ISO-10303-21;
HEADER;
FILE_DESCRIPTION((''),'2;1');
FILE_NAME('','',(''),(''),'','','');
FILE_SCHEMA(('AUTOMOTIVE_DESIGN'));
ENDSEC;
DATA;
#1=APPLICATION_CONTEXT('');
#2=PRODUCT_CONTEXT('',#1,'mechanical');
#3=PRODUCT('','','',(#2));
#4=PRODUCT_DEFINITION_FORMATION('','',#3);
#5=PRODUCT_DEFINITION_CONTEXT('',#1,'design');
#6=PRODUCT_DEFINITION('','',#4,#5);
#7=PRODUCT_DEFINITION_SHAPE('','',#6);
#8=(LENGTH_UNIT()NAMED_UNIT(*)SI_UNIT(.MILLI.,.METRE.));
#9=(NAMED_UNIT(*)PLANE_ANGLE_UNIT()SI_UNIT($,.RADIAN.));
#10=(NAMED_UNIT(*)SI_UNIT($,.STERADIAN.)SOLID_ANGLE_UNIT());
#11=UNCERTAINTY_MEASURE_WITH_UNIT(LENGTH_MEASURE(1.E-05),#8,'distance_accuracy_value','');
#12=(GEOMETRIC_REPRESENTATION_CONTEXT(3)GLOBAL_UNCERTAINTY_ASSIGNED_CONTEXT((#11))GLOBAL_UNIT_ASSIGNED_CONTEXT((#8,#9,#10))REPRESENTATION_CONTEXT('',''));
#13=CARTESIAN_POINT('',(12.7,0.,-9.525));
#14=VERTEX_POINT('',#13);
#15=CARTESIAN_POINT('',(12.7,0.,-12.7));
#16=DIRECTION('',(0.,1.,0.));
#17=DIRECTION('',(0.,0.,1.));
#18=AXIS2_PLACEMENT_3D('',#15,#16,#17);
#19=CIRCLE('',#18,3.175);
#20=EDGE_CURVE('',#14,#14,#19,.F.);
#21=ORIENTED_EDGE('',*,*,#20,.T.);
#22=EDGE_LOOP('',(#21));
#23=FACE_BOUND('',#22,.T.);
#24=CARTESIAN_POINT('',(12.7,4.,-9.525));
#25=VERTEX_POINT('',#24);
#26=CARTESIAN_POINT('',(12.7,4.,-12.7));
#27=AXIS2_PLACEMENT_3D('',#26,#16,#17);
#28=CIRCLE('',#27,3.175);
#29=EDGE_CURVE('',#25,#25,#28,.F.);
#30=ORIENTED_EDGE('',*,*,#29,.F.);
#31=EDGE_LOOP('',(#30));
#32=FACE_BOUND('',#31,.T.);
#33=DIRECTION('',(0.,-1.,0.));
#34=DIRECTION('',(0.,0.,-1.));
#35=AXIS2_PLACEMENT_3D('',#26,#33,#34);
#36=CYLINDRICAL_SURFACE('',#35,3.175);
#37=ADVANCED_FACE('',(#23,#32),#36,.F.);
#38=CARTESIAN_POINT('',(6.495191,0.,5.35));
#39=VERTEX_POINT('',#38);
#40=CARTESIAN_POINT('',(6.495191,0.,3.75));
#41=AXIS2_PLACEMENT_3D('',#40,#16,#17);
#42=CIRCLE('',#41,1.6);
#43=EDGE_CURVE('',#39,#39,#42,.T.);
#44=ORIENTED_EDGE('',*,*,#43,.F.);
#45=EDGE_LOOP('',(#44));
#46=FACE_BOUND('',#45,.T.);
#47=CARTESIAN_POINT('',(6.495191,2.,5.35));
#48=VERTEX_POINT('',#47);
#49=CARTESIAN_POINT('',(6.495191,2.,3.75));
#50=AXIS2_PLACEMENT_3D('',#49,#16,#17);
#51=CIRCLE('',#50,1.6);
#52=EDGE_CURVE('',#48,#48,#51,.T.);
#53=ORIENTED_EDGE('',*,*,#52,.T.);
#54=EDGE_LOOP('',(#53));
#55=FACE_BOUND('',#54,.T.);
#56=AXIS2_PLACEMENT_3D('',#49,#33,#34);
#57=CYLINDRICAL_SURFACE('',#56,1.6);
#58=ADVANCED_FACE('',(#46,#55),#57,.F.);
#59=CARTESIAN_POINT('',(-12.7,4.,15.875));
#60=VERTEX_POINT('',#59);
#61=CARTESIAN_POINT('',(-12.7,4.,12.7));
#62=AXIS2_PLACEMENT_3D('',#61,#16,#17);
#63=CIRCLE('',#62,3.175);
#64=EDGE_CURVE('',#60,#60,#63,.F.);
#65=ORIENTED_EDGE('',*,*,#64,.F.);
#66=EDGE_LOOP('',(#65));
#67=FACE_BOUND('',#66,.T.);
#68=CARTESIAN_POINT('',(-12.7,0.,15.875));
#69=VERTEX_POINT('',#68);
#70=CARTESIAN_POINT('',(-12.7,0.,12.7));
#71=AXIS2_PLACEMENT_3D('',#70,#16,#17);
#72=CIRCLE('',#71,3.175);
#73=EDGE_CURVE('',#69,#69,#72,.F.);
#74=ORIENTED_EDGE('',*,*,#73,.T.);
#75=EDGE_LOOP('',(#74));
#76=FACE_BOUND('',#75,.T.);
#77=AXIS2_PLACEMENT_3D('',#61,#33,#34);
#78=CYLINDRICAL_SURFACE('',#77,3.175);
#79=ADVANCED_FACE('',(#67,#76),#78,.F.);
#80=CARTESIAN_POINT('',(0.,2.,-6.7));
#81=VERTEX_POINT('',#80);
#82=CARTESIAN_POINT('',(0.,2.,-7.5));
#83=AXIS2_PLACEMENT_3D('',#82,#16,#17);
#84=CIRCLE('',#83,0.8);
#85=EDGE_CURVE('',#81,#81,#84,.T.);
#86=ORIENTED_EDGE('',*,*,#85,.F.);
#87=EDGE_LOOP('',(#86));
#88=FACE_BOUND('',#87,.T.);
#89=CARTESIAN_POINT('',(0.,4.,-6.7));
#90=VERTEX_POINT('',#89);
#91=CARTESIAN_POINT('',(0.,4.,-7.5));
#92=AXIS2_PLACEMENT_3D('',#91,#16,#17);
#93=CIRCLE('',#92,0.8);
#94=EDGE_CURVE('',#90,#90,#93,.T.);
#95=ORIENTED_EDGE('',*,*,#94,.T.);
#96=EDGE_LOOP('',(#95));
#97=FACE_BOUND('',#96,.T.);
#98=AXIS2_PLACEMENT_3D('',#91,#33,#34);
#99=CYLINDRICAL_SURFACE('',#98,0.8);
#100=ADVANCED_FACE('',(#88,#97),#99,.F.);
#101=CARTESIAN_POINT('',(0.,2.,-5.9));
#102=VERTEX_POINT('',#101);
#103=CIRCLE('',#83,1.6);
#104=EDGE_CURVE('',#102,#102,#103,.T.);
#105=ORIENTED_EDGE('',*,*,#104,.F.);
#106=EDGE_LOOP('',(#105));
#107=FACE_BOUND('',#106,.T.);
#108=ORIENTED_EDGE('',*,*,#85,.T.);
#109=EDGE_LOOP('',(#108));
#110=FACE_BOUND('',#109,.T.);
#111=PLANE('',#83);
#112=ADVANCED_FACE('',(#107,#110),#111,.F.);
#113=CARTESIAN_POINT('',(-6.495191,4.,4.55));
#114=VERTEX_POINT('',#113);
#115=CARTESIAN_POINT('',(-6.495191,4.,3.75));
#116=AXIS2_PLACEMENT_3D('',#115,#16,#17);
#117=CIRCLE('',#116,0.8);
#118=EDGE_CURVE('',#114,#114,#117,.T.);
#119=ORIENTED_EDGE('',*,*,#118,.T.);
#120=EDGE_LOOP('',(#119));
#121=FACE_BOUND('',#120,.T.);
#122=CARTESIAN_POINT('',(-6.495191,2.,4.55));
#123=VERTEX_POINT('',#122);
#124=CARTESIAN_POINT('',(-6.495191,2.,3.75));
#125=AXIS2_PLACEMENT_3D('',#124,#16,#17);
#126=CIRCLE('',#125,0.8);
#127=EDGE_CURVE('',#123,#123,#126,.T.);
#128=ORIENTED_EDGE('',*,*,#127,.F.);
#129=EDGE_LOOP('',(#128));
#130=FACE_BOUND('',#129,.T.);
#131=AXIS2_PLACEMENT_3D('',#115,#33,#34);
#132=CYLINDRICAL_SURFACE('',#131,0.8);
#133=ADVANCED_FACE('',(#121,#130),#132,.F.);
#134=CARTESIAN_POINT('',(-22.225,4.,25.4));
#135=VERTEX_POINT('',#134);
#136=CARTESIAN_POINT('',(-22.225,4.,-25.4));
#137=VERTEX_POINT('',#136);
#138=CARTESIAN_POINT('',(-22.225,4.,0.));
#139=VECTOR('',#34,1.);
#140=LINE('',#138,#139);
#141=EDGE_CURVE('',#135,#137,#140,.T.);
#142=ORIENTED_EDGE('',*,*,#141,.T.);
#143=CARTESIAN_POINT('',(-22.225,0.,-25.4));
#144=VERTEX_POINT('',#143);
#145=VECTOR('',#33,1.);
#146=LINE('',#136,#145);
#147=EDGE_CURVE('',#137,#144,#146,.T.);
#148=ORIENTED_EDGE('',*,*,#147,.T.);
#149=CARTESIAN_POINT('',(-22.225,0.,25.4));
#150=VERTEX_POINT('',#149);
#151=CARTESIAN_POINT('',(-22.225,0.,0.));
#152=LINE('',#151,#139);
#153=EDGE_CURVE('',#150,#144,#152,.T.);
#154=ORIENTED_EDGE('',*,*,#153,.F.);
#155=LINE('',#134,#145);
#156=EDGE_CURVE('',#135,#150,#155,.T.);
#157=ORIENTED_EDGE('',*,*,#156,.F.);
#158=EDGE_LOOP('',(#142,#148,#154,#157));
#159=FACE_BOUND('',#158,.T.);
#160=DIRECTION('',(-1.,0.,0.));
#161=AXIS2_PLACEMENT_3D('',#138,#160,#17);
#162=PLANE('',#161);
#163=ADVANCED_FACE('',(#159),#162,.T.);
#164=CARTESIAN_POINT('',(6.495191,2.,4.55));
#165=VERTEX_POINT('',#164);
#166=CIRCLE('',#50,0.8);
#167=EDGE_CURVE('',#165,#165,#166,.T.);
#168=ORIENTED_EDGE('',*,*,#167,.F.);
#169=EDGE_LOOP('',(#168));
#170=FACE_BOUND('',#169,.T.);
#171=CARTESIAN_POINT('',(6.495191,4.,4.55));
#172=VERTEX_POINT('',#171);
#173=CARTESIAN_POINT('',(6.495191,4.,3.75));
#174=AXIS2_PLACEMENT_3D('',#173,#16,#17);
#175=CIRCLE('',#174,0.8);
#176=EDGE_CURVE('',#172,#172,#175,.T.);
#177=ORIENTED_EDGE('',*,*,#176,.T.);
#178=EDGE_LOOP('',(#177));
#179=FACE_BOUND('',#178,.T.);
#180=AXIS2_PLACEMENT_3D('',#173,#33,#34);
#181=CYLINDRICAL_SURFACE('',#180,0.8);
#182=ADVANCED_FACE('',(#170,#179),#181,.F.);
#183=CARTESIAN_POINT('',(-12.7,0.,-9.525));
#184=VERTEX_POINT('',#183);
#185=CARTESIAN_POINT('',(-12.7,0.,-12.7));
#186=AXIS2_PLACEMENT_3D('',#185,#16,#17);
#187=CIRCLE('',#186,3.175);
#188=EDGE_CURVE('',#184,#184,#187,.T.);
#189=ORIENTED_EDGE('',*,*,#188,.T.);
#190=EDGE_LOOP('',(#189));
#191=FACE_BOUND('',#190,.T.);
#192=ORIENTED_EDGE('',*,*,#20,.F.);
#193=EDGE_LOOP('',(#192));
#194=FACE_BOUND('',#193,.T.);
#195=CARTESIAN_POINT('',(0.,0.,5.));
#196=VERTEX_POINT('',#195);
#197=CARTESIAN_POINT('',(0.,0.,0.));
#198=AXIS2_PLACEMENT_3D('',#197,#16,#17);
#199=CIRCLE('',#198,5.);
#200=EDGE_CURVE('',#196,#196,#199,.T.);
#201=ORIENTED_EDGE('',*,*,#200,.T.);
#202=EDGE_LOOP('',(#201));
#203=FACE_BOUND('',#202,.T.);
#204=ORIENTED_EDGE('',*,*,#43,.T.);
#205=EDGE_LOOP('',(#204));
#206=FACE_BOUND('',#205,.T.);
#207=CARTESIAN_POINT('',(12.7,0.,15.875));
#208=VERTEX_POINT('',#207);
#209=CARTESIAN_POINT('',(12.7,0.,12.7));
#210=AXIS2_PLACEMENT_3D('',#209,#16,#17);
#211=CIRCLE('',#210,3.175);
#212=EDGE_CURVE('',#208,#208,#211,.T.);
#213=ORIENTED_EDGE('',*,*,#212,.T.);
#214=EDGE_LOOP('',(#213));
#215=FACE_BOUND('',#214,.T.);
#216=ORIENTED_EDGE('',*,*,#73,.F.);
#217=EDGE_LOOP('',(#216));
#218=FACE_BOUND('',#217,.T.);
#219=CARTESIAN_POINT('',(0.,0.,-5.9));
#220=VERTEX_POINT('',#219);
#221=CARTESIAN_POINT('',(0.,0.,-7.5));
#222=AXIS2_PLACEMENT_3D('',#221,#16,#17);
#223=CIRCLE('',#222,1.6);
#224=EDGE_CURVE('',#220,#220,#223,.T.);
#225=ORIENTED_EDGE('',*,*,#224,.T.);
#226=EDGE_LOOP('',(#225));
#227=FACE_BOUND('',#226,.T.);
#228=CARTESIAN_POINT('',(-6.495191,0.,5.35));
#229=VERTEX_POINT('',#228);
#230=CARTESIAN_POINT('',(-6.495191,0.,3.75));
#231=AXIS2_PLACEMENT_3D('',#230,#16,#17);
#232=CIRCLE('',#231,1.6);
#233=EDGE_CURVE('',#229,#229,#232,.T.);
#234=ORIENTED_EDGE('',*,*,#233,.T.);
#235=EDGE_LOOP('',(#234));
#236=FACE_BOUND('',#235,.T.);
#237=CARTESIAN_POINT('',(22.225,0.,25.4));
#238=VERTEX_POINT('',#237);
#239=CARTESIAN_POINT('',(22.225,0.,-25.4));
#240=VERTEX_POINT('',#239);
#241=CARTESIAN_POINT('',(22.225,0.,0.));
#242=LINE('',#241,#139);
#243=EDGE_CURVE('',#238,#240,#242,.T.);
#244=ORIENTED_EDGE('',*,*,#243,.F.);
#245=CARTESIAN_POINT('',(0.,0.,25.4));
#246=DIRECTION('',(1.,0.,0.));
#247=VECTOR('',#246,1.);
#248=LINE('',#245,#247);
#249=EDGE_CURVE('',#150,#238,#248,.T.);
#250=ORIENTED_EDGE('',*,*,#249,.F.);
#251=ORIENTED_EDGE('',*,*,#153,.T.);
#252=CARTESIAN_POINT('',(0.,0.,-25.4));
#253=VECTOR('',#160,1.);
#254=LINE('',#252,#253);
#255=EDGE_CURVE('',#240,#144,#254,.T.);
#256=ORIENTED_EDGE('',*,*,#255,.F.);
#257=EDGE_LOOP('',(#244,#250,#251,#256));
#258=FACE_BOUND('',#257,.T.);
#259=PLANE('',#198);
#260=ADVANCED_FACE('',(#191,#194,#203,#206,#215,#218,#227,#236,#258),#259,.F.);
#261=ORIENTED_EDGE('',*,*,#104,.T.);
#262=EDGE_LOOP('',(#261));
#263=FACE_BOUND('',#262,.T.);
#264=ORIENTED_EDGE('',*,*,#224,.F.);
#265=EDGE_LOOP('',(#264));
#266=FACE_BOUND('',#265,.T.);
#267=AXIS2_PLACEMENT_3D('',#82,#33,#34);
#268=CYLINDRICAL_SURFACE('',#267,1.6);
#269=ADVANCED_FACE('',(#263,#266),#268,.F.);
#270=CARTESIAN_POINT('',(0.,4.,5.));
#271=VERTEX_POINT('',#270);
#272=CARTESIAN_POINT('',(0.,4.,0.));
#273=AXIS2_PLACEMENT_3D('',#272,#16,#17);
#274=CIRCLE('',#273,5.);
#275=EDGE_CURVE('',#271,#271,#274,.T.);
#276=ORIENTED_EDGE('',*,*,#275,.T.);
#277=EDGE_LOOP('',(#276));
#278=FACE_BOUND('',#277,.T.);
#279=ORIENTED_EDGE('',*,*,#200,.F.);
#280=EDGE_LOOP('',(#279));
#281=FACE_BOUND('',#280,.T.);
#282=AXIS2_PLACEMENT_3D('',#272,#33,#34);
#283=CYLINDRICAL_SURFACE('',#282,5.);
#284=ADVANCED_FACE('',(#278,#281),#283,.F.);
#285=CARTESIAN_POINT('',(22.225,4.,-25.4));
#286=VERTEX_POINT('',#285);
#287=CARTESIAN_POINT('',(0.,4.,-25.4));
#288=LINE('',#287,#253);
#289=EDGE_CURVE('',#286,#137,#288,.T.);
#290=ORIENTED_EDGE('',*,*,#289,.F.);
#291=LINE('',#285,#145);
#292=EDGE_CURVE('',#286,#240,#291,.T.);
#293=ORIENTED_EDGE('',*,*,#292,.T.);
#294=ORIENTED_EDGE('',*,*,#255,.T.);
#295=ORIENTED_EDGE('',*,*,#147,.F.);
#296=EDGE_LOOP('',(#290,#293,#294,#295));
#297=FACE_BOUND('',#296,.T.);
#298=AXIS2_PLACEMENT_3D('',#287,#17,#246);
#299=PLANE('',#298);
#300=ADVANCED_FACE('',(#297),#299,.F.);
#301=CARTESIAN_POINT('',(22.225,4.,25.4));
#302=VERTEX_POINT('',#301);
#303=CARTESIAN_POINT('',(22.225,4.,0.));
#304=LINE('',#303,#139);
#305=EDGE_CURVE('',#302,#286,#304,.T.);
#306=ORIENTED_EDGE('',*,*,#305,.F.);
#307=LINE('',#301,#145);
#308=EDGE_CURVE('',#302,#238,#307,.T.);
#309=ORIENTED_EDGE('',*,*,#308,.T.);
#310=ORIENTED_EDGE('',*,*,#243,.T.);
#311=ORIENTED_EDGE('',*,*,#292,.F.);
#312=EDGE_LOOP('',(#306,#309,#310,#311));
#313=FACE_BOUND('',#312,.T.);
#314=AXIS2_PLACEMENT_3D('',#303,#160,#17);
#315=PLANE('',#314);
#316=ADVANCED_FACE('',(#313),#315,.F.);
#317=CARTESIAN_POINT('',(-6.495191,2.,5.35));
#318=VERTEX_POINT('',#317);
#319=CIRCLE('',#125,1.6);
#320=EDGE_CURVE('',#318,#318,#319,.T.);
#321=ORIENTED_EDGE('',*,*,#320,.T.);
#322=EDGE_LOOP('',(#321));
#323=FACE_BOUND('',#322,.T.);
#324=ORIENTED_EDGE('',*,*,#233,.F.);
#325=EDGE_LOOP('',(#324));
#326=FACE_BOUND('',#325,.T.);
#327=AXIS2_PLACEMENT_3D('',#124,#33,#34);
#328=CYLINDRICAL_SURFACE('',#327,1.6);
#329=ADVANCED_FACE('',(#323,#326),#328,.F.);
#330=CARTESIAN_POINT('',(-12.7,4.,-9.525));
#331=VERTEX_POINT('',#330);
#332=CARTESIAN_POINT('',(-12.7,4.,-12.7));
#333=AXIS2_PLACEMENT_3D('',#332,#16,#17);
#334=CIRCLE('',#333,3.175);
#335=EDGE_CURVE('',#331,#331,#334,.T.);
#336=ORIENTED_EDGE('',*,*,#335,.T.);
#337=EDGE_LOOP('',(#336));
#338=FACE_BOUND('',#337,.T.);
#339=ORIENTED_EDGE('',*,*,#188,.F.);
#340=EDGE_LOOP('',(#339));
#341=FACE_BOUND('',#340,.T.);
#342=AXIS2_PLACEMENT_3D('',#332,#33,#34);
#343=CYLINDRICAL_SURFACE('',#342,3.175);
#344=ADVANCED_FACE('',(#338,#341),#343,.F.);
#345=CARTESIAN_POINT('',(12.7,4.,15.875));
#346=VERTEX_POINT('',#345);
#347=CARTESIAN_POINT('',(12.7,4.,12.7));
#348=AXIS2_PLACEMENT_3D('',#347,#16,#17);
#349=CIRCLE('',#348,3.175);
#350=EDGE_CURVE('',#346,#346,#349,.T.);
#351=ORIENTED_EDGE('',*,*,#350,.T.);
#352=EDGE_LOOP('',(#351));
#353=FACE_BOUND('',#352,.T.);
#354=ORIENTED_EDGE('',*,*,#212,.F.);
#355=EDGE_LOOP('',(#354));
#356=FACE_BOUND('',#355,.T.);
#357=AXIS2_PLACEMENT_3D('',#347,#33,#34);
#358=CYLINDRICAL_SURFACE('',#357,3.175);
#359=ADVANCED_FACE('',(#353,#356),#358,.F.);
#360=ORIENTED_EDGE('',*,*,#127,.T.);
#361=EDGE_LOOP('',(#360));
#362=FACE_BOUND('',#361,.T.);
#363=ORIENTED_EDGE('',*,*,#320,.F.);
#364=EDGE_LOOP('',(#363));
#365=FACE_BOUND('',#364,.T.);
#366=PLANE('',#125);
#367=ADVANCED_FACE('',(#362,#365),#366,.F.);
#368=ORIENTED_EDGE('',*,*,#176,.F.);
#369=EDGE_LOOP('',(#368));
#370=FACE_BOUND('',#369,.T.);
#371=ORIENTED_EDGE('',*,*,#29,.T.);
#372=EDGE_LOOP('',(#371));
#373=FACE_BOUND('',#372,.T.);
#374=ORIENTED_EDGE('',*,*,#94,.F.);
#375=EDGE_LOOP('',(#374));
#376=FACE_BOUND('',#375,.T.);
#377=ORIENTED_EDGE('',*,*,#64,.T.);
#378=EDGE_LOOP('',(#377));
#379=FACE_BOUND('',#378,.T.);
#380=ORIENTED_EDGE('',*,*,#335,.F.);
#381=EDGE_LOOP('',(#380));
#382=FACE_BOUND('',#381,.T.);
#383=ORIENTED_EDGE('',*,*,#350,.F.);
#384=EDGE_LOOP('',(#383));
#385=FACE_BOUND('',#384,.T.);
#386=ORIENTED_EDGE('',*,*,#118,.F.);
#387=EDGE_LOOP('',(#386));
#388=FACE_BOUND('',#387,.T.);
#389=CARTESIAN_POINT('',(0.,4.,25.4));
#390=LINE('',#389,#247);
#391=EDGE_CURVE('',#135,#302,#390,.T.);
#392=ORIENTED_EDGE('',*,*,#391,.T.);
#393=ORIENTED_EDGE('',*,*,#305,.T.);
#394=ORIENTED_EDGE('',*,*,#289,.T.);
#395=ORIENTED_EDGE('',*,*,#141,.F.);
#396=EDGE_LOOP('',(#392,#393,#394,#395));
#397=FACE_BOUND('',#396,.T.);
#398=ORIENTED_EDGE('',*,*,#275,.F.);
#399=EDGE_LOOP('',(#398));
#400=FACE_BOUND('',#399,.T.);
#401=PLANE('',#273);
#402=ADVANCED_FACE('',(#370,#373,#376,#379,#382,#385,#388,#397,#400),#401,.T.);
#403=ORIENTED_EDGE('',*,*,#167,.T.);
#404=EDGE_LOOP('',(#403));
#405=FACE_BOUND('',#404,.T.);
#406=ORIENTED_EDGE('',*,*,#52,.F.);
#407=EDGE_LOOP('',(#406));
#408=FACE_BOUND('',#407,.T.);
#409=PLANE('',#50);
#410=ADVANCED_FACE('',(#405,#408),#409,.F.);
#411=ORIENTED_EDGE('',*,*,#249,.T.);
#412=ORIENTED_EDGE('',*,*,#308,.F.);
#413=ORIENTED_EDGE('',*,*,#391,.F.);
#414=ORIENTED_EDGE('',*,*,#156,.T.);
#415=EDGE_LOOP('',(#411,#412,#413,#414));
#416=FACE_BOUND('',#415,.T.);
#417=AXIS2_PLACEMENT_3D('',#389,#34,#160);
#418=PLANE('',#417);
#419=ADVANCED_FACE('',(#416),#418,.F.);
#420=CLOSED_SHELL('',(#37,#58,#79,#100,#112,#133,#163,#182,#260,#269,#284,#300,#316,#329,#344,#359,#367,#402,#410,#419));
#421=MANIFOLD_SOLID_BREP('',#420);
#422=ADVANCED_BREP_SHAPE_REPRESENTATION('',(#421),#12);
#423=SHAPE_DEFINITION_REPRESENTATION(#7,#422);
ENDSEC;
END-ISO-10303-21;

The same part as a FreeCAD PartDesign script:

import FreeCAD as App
import Part
import Sketcher

doc = App.newDocument("Part")
body = doc.addObject("PartDesign::Body", "Body")

# Sketch on XZ plane
sketch1 = doc.addObject("Sketcher::SketchObject", "Sketch")
body.addObject(sketch1)
sketch1.AttachmentSupport = (doc.XZ_Plane, [""])
sketch1.MapMode = "FlatFace"
sketch1.addGeometry([
    Part.LineSegment(App.Vector(-22.2, -25.4, 0), App.Vector(-22.2, 25.4, 0)),  # 0
    Part.LineSegment(App.Vector(-22.2, 25.4, 0), App.Vector(22.2, 25.4, 0)),  # 1
    Part.LineSegment(App.Vector(22.2, 25.4, 0), App.Vector(22.2, -25.4, 0)),  # 2
    Part.LineSegment(App.Vector(22.2, -25.4, 0), App.Vector(-22.2, -25.4, 0)),  # 3
    Part.Circle(App.Vector(-12.7, 12.7, 0), App.Vector(0, 0, 1), 3.2),  # 4
    Part.Circle(App.Vector(-6.5, 3.8, 0), App.Vector(0, 0, 1), 0.8),  # 5
    Part.Circle(App.Vector(12.7, 12.7, 0), App.Vector(0, 0, 1), 3.2),  # 6
    Part.Circle(App.Vector(6.5, 3.8, 0), App.Vector(0, 0, 1), 0.8),  # 7
    Part.Circle(App.Vector(-12.7, -12.7, 0), App.Vector(0, 0, 1), 3.2),  # 8
    Part.Circle(App.Vector(0, 0, 0), App.Vector(0, 0, 1), 5),  # 9
    Part.Circle(App.Vector(0, -7.5, 0), App.Vector(0, 0, 1), 0.8),  # 10
    Part.Circle(App.Vector(12.7, -12.7, 0), App.Vector(0, 0, 1), 3.2),  # 11
], False)
sketch1.addConstraint([
    Sketcher.Constraint("Coincident", 0, 2, 1, 1),
    Sketcher.Constraint("Coincident", 1, 2, 2, 1),
    Sketcher.Constraint("Coincident", 2, 2, 3, 1),
    Sketcher.Constraint("Coincident", 3, 2, 0, 1),
    Sketcher.Constraint("Vertical", 0),
    Sketcher.Constraint("Horizontal", 1),
    Sketcher.Constraint("Vertical", 2),
    Sketcher.Constraint("Horizontal", 3),
    Sketcher.Constraint("Coincident", 9, 3, -1, 1),
    Sketcher.Constraint("Equal", 4, 6),
    Sketcher.Constraint("Equal", 5, 7),
    Sketcher.Constraint("Equal", 6, 8),
    Sketcher.Constraint("Equal", 7, 10),
    Sketcher.Constraint("Equal", 8, 11),
    Sketcher.Constraint("Symmetric", 6, 3, 8, 3, -1, 1),
    Sketcher.Constraint("Symmetric", 4, 3, 11, 3, -1, 1),
    Sketcher.Constraint("Symmetric", 0, 2, 2, 2, -1, 1),
    Sketcher.Constraint("Symmetric", 4, 3, 6, 3, -2),
    Sketcher.Constraint("Symmetric", 5, 3, 7, 3, -2),
    Sketcher.Constraint("PointOnObject", 10, 3, -2),
    Sketcher.Constraint("Diameter", 9, 10.0),
    Sketcher.Constraint("Diameter", 5, 1.6),
    Sketcher.Constraint("Diameter", 4, 6.35),
    Sketcher.Constraint("DistanceY", 0, 1, 0, 2, 50.8),
    Sketcher.Constraint("DistanceX", 1, 1, 1, 2, 44.45),
    Sketcher.Constraint("DistanceX", 4, 3, -1, 1, 12.7),
    Sketcher.Constraint("DistanceY", -1, 1, 4, 3, 12.7),
    Sketcher.Constraint("DistanceY", 10, 3, -1, 1, 7.5),
    Sketcher.Constraint("DistanceY", -1, 1, 5, 3, 3.75),
    Sketcher.Constraint("DistanceX", 5, 3, -1, 1, 6.495191),
])
pad1 = doc.addObject("PartDesign::Pad", "Pad")
body.addObject(pad1)
pad1.Profile = sketch1
pad1.Length = 4
pad1.Reversed = True

# Sketch on XZ plane
sketch2 = doc.addObject("Sketcher::SketchObject", "Sketch001")
body.addObject(sketch2)
sketch2.AttachmentSupport = (doc.XZ_Plane, [""])
sketch2.MapMode = "FlatFace"
sketch2.addGeometry([
    Part.Circle(App.Vector(6.5, 3.8, 0), App.Vector(0, 0, 1), 1.6),
    Part.Circle(App.Vector(-6.5, 3.8, 0), App.Vector(0, 0, 1), 1.6),
    Part.Circle(App.Vector(0, -7.5, 0), App.Vector(0, 0, 1), 1.6),
], False)
sketch2.addConstraint([
    Sketcher.Constraint("Equal", 0, 1),
    Sketcher.Constraint("Equal", 1, 2),
    Sketcher.Constraint("Symmetric", 0, 3, 1, 3, -2),
    Sketcher.Constraint("PointOnObject", 2, 3, -2),
    Sketcher.Constraint("Diameter", 0, 3.2),
    Sketcher.Constraint("DistanceY", 2, 3, -1, 1, 7.5),
    Sketcher.Constraint("DistanceY", -1, 1, 0, 3, 3.75),
    Sketcher.Constraint("DistanceX", -1, 1, 0, 3, 6.495191),
])
pocket1 = doc.addObject("PartDesign::Pocket", "Pocket")
body.addObject(pocket1)
pocket1.Profile = sketch2
pocket1.Length = 2

doc.recompute()
